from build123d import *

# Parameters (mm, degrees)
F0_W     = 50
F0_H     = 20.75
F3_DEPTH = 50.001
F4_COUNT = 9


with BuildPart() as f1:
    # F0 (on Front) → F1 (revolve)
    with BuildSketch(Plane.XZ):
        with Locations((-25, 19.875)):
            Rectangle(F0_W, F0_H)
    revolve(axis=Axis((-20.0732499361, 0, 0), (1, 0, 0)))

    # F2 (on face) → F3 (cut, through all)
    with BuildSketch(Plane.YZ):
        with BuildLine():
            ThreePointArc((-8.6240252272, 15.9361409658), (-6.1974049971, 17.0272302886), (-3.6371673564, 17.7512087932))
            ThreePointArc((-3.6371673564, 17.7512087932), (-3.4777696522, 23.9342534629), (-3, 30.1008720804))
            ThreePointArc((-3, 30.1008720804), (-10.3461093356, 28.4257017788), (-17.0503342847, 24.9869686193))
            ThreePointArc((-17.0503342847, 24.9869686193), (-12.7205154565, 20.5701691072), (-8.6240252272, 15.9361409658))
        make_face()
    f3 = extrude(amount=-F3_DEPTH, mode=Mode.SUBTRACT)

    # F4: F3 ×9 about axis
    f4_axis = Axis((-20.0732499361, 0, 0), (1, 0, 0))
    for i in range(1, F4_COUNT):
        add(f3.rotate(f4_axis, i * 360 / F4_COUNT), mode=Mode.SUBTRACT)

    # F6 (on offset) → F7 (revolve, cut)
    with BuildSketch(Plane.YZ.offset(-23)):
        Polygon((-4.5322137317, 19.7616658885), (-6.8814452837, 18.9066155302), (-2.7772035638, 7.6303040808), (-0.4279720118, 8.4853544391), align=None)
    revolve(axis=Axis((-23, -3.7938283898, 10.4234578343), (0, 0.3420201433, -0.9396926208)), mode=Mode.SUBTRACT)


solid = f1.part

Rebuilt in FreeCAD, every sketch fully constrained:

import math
import FreeCAD as App
import Part
import Sketcher
Q = App.Units.Quantity

doc = App.newDocument("Part")
body = doc.addObject("PartDesign::Body", "Body")

sketch1 = body.newObject("Sketcher::SketchObject", "Sketch")
sketch1.AttachmentSupport = (doc.getObject("XZ_Plane"), [""])
sketch1.MapMode = "FlatFace"
sketch1.addGeometry(Part.LineSegment(App.Vector(-50, 30, 0), App.Vector(-50, 10, 0)), False)
sketch1.addGeometry(Part.LineSegment(App.Vector(-50, 10, 0), App.Vector(0, 10, 0)), False)
sketch1.addGeometry(Part.LineSegment(App.Vector(0, 10, 0), App.Vector(0, 30, 0)), False)
sketch1.addGeometry(Part.LineSegment(App.Vector(0, 30, 0), App.Vector(-50, 30, 0)), False)
sketch1.addConstraint(Sketcher.Constraint("Coincident", 0, 2, 1, 1))
sketch1.addConstraint(Sketcher.Constraint("Coincident", 1, 2, 2, 1))
sketch1.addConstraint(Sketcher.Constraint("Coincident", 2, 2, 3, 1))
sketch1.addConstraint(Sketcher.Constraint("Coincident", 3, 2, 0, 1))
sketch1.addConstraint(Sketcher.Constraint("Vertical", 0))
sketch1.addConstraint(Sketcher.Constraint("Horizontal", 1))
sketch1.addConstraint(Sketcher.Constraint("Vertical", 2))
sketch1.addConstraint(Sketcher.Constraint("Horizontal", 3))
sketch1.addConstraint(Sketcher.Constraint("PointOnObject", 1, 2, -2))
sketch1.addConstraint(Sketcher.Constraint("DistanceX", 1, 1, 1, 2, Q("50 mm")))
sketch1.addConstraint(Sketcher.Constraint("DistanceY", 0, 2, 0, 1, Q("20.75 mm")))
sketch1.addConstraint(Sketcher.Constraint("DistanceY", -1, 1, 0, 2, Q("9.5 mm")))
revolution = body.newObject("PartDesign::Revolution", "Revolution")
revolution.Profile = sketch1
revolution.ReferenceAxis = (sketch1, ["H_Axis"])
revolution.Angle = 360

sketch2 = body.newObject("Sketcher::SketchObject", "Sketch001")
sketch2.AttachmentSupport = (doc.getObject("YZ_Plane"), [""])
sketch2.MapMode = "FlatFace"
sketch2.addGeometry(Part.ArcOfCircle(Part.Circle(App.Vector(0, 0, 0), App.Vector(0, 0, 1), 18), math.radians(101.58), math.radians(118.42)), False)
sketch2.addGeometry(Part.ArcOfCircle(Part.Circle(App.Vector(116, 18, 0), App.Vector(0, 0, 1), 120), math.radians(174.09), math.radians(180)), False)
sketch2.addGeometry(Part.ArcOfCircle(Part.Circle(App.Vector(0, 0, 0), App.Vector(0, 0, 1), 30), math.radians(96), math.radians(124)), False)
sketch2.addGeometry(Part.ArcOfCircle(Part.Circle(App.Vector(-101, -61, 0), App.Vector(0, 0, 1), 120), math.radians(40), math.radians(45.91)), False)
sketch2.addConstraint(Sketcher.Constraint("Coincident", 0, 1, 1, 2))
sketch2.addConstraint(Sketcher.Constraint("Coincident", 1, 1, 2, 1))
sketch2.addConstraint(Sketcher.Constraint("Coincident", 2, 2, 3, 2))
sketch2.addConstraint(Sketcher.Constraint("Coincident", 3, 1, 0, 2))
sketch2.addConstraint(Sketcher.Constraint("Coincident", 0, 3, -1, 1))
sketch2.addConstraint(Sketcher.Constraint("Coincident", 2, 3, -1, 1))
sketch2.addConstraint(Sketcher.Constraint("Equal", 1, 3))
sketch2.addConstraint(Sketcher.Constraint("Horizontal", 1, 3, 0, 1))
sketch2.addConstraint(Sketcher.Constraint("Radius", 1, Q("120 mm")))
sketch2.addConstraint(Sketcher.Constraint("Radius", 0, Q("18.12 mm")))
sketch2.addConstraint(Sketcher.Constraint("Radius", 2, Q("30.25 mm")))
sketch2.addConstraint(Sketcher.Constraint("DistanceX", 1, 1, -1, 1, Q("3 mm")))
sketch2.addConstraint(Sketcher.Constraint("DistanceX", 3, 3, -1, 1, Q("100.549358 mm")))
sketch2.addConstraint(Sketcher.Constraint("DistanceY", -1, 1, 2, 2, Q("24.986969 mm")))
pocket1 = body.newObject("PartDesign::Pocket", "Pocket")
pocket1.Profile = sketch2
pocket1.Type = "ThroughAll"
doc.recompute()

polarpattern = body.newObject("PartDesign::PolarPattern", "PolarPattern")
polarpattern.Originals = [pocket1]
polarpattern.Axis = (doc.getObject("X_Axis"), [""])
polarpattern.Angle = 360
polarpattern.Occurrences = 9
body.Tip = polarpattern

sketch3 = body.newObject("Sketcher::SketchObject", "Sketch002")
sketch3.AttachmentSupport = (doc.getObject("YZ_Plane"), [""])
sketch3.MapMode = "FlatFace"
sketch3.AttachmentOffset = App.Placement(App.Vector(0, 0, -23), App.Rotation())
sketch3.addGeometry(Part.LineSegment(App.Vector(-4.5, 19.8, 0), App.Vector(-6.9, 18.9, 0)), False)
sketch3.addGeometry(Part.LineSegment(App.Vector(-6.9, 18.9, 0), App.Vector(-2.8, 7.6, 0)), False)
sketch3.addGeometry(Part.LineSegment(App.Vector(-2.8, 7.6, 0), App.Vector(-0.4, 8.5, 0)), False)
sketch3.addGeometry(Part.LineSegment(App.Vector(-0.4, 8.5, 0), App.Vector(-4.5, 19.8, 0)), False)
sketch3.addGeometry(Part.LineSegment(App.Vector(-6.9, 18.9, 0), App.Vector(-2.8, 7.6, 0)), True)
sketch3.addConstraint(Sketcher.Constraint("Coincident", 0, 2, 1, 1))
sketch3.addConstraint(Sketcher.Constraint("Coincident", 1, 2, 2, 1))
sketch3.addConstraint(Sketcher.Constraint("Coincident", 2, 2, 3, 1))
sketch3.addConstraint(Sketcher.Constraint("Coincident", 3, 2, 0, 1))
sketch3.addConstraint(Sketcher.Constraint("Coincident", 4, 1, 0, 2))
sketch3.addConstraint(Sketcher.Constraint("Coincident", 4, 2, 1, 2))
sketch3.addConstraint(Sketcher.Constraint("Perpendicular", 0, 1))
sketch3.addConstraint(Sketcher.Constraint("Perpendicular", 1, 2))
sketch3.addConstraint(Sketcher.Constraint("Perpendicular", 2, 3))
sketch3.addConstraint(Sketcher.Constraint("Angle", 0, Q("-160 deg")))
sketch3.addConstraint(Sketcher.Constraint("Distance", 1, Q("12 mm")))
sketch3.addConstraint(Sketcher.Constraint("Distance", 0, Q("2.5 mm")))
sketch3.addConstraint(Sketcher.Constraint("DistanceX", 0, 2, -1, 1, Q("6.881445 mm")))
sketch3.addConstraint(Sketcher.Constraint("DistanceY", -1, 1, 0, 2, Q("18.906616 mm")))
groove = body.newObject("PartDesign::Groove", "Groove")
groove.Profile = sketch3
groove.ReferenceAxis = (sketch3, ["Axis0"])
groove.Angle = 360

doc.recompute()
